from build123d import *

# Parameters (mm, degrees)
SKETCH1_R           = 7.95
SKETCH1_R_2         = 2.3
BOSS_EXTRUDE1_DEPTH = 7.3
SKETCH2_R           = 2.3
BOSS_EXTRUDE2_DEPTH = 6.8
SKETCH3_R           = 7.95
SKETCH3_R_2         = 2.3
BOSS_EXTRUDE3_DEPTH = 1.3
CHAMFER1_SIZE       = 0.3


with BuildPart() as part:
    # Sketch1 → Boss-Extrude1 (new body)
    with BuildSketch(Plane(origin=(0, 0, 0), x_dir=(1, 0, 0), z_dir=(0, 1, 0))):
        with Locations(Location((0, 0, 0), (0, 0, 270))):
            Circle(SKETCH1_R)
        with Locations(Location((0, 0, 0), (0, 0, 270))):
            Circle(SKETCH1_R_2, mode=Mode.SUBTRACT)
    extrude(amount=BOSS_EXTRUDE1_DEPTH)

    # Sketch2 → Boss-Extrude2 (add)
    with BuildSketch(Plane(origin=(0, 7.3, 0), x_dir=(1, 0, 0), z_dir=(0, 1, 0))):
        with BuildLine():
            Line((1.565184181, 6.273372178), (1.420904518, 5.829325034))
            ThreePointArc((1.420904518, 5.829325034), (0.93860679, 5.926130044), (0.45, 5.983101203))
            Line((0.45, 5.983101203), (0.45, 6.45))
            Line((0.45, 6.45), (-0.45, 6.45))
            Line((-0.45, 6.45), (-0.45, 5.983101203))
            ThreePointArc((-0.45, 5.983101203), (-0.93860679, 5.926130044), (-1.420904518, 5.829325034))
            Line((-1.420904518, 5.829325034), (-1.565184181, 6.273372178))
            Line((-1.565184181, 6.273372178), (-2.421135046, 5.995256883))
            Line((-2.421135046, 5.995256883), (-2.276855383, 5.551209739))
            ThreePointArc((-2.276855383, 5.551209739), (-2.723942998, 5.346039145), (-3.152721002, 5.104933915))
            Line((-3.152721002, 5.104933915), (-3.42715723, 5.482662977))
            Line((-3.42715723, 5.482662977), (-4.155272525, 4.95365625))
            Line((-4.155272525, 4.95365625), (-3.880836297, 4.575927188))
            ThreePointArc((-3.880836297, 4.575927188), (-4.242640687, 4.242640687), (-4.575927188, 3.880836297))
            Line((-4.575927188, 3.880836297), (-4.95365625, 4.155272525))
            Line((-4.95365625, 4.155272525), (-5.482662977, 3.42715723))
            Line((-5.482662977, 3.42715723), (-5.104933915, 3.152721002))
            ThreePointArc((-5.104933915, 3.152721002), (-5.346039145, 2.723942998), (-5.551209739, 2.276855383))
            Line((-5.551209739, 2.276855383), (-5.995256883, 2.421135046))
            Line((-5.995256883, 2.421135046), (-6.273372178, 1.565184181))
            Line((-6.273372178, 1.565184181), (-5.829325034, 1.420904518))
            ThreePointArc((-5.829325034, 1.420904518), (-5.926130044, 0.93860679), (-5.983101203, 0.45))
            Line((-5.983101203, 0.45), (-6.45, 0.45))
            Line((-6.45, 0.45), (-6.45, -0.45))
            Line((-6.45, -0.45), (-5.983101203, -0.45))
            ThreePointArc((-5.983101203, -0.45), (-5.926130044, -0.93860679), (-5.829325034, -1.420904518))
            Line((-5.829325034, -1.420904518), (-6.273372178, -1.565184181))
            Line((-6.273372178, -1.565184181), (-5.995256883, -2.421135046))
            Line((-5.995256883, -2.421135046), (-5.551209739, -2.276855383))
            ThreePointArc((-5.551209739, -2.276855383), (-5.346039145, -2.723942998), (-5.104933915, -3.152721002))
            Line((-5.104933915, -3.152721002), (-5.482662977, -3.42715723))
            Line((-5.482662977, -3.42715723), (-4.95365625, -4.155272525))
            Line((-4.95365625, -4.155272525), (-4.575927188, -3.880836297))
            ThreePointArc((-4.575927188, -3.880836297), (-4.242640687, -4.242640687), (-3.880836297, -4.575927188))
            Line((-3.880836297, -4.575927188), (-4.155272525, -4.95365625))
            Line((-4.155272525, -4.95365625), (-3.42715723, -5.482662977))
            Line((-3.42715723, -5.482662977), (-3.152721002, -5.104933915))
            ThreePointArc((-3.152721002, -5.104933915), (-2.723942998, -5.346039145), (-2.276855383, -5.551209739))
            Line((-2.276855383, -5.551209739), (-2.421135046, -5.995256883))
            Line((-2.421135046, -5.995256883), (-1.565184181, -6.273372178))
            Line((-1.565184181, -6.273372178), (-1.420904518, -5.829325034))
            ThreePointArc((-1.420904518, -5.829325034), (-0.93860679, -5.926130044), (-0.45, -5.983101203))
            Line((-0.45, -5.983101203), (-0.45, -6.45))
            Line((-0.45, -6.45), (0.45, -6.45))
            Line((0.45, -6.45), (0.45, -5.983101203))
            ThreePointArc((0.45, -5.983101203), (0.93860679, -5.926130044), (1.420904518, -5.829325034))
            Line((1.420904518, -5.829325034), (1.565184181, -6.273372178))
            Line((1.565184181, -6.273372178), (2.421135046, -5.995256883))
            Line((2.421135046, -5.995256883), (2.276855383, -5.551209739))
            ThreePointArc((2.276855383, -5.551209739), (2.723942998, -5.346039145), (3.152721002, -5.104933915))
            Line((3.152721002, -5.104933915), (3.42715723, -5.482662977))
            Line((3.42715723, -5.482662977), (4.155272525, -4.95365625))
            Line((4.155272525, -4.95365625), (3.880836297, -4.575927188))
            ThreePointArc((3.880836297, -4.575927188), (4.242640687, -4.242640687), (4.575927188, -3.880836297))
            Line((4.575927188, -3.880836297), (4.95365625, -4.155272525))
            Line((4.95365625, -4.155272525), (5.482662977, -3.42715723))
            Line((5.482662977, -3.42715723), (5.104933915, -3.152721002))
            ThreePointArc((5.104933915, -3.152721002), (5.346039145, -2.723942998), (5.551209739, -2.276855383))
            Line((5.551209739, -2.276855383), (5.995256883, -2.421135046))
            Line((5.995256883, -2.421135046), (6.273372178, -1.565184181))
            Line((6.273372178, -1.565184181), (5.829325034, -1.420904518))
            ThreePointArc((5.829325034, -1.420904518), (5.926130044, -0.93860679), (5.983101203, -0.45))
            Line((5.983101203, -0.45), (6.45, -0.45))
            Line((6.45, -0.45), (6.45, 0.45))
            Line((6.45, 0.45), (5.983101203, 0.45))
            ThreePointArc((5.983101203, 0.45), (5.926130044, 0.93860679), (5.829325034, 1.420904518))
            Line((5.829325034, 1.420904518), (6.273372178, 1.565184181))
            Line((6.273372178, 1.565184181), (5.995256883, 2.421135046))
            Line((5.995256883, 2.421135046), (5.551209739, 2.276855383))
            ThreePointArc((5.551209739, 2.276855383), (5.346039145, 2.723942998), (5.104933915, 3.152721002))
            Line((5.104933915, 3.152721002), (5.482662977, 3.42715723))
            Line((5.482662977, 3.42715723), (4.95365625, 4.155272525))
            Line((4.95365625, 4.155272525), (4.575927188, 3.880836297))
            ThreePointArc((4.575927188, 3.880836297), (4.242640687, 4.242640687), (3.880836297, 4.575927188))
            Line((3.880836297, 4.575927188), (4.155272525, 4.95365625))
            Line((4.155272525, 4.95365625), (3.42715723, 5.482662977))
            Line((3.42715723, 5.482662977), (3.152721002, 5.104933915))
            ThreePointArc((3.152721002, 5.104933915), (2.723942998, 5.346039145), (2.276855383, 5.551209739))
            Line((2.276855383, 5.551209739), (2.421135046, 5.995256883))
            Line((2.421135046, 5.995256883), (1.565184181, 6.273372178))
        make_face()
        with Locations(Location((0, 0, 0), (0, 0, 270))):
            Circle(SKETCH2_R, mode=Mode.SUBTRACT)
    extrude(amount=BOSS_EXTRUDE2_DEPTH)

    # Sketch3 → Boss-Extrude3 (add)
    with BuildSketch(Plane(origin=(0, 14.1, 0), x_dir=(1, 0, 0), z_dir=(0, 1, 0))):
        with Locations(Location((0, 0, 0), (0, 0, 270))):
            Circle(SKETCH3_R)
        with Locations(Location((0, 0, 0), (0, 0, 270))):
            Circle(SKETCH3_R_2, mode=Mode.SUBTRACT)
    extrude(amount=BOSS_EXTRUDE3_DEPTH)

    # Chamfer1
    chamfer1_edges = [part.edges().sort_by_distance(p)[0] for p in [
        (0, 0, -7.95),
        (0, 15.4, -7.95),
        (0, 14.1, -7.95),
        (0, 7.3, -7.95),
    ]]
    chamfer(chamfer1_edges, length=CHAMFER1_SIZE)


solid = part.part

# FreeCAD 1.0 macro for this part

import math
import FreeCAD as App
import Part
import Sketcher
Q = App.Units.Quantity


def edges_at(feature, points):
    """Names of the edges that pass closest to the given points."""
    edges = feature.Shape.Edges
    near = lambda p: min(range(len(edges)), key=lambda i: edges[i].distToShape(Part.Vertex(*p))[0])
    return sorted({f"Edge{near(p) + 1}" for p in points})

doc = App.newDocument("Part")
body = doc.addObject("PartDesign::Body", "Body")

# Sketch on XZ plane
sketch1 = doc.addObject("Sketcher::SketchObject", "Sketch")
body.addObject(sketch1)
sketch1.AttachmentSupport = (doc.XZ_Plane, [""])
sketch1.MapMode = "FlatFace"
sketch1.addGeometry([
    Part.Circle(App.Vector(0, 0, 0), App.Vector(0, 0, 1), 8),
    Part.Circle(App.Vector(0, 0, 0), App.Vector(0, 0, 1), 2.3),
], False)
sketch1.addConstraint([
    Sketcher.Constraint("Coincident", 0, 3, -1, 1),
    Sketcher.Constraint("Coincident", 1, 3, -1, 1),
    Sketcher.Constraint("Diameter", 0, 15.9),
    Sketcher.Constraint("Diameter", 1, 4.6),
])
pad1 = doc.addObject("PartDesign::Pad", "Pad")
body.addObject(pad1)
pad1.Profile = sketch1
pad1.Length = 7.3
pad1.Reversed = True

# Sketch on XZ plane
sketch2 = doc.addObject("Sketcher::SketchObject", "Sketch001")
body.addObject(sketch2)
sketch2.AttachmentSupport = (doc.XZ_Plane, [""])
sketch2.MapMode = "FlatFace"
sketch2.AttachmentOffset = App.Placement(App.Vector(0, 0, -7.3), App.Rotation())
sketch2.addGeometry([
    Part.LineSegment(App.Vector(1.57, -6.27, 0), App.Vector(1.42, -5.83, 0)),  # 0
    Part.ArcOfCircle(Part.Circle(App.Vector(0, 0, 0), App.Vector(0, 0, 1), 6), math.radians(-85.7), math.radians(-76.3)),  # 1
    Part.LineSegment(App.Vector(0.45, -5.98, 0), App.Vector(0.45, -6.45, 0)),  # 2
    Part.LineSegment(App.Vector(0.45, -6.45, 0), App.Vector(-0.45, -6.45, 0)),  # 3
    Part.LineSegment(App.Vector(-0.45, -6.45, 0), App.Vector(-0.45, -5.98, 0)),  # 4
    Part.ArcOfCircle(Part.Circle(App.Vector(0, 0, 0), App.Vector(0, 0, 1), 6), math.radians(-103.7), math.radians(-94.3)),  # 5
    Part.LineSegment(App.Vector(-1.42, -5.83, 0), App.Vector(-1.57, -6.27, 0)),  # 6
    Part.LineSegment(App.Vector(-1.57, -6.27, 0), App.Vector(-2.42, -6, 0)),  # 7
    Part.LineSegment(App.Vector(-2.42, -6, 0), App.Vector(-2.28, -5.55, 0)),  # 8
    Part.ArcOfCircle(Part.Circle(App.Vector(0, 0, 0), App.Vector(0, 0, 1), 6), math.radians(-121.7), math.radians(-112.3)),  # 9
    Part.LineSegment(App.Vector(-3.15, -5.1, 0), App.Vector(-3.43, -5.48, 0)),  # 10
    Part.LineSegment(App.Vector(-3.43, -5.48, 0), App.Vector(-4.16, -4.95, 0)),  # 11
    Part.LineSegment(App.Vector(-4.16, -4.95, 0), App.Vector(-3.88, -4.58, 0)),  # 12
    Part.ArcOfCircle(Part.Circle(App.Vector(0, 0, 0), App.Vector(0, 0, 1), 6), math.radians(-139.7), math.radians(-130.3)),  # 13
    Part.LineSegment(App.Vector(-4.58, -3.88, 0), App.Vector(-4.95, -4.16, 0)),  # 14
    Part.LineSegment(App.Vector(-4.95, -4.16, 0), App.Vector(-5.48, -3.43, 0)),  # 15
    Part.LineSegment(App.Vector(-5.48, -3.43, 0), App.Vector(-5.1, -3.15, 0)),  # 16
    Part.ArcOfCircle(Part.Circle(App.Vector(0, 0, 0), App.Vector(0, 0, 1), 6), math.radians(-157.7), math.radians(-148.3)),  # 17
    Part.LineSegment(App.Vector(-5.55, -2.28, 0), App.Vector(-6, -2.42, 0)),  # 18
    Part.LineSegment(App.Vector(-6, -2.42, 0), App.Vector(-6.27, -1.57, 0)),  # 19
    Part.LineSegment(App.Vector(-6.27, -1.57, 0), App.Vector(-5.83, -1.42, 0)),  # 20
    Part.ArcOfCircle(Part.Circle(App.Vector(0, 0, 0), App.Vector(0, 0, 1), 6), math.radians(-175.7), math.radians(-166.3)),  # 21
    Part.LineSegment(App.Vector(-5.98, -0.45, 0), App.Vector(-6.45, -0.45, 0)),  # 22
    Part.LineSegment(App.Vector(-6.45, -0.45, 0), App.Vector(-6.45, 0.45, 0)),  # 23
    Part.LineSegment(App.Vector(-6.45, 0.45, 0), App.Vector(-5.98, 0.45, 0)),  # 24
    Part.ArcOfCircle(Part.Circle(App.Vector(0, 0, 0), App.Vector(0, 0, 1), 6), math.radians(166.3), math.radians(175.7)),  # 25
    Part.LineSegment(App.Vector(-5.83, 1.42, 0), App.Vector(-6.27, 1.57, 0)),  # 26
    Part.LineSegment(App.Vector(-6.27, 1.57, 0), App.Vector(-6, 2.42, 0)),  # 27
    Part.LineSegment(App.Vector(-6, 2.42, 0), App.Vector(-5.55, 2.28, 0)),  # 28
    Part.ArcOfCircle(Part.Circle(App.Vector(0, 0, 0), App.Vector(0, 0, 1), 6), math.radians(148.3), math.radians(157.7)),  # 29
    Part.LineSegment(App.Vector(-5.1, 3.15, 0), App.Vector(-5.48, 3.43, 0)),  # 30
    Part.LineSegment(App.Vector(-5.48, 3.43, 0), App.Vector(-4.95, 4.16, 0)),  # 31
    Part.LineSegment(App.Vector(-4.95, 4.16, 0), App.Vector(-4.58, 3.88, 0)),  # 32
    Part.ArcOfCircle(Part.Circle(App.Vector(0, 0, 0), App.Vector(0, 0, 1), 6), math.radians(130.3), math.radians(139.7)),  # 33
    Part.LineSegment(App.Vector(-3.88, 4.58, 0), App.Vector(-4.16, 4.95, 0)),  # 34
    Part.LineSegment(App.Vector(-4.16, 4.95, 0), App.Vector(-3.43, 5.48, 0)),  # 35
    Part.LineSegment(App.Vector(-3.43, 5.48, 0), App.Vector(-3.15, 5.1, 0)),  # 36
    Part.ArcOfCircle(Part.Circle(App.Vector(0, 0, 0), App.Vector(0, 0, 1), 6), math.radians(112.3), math.radians(121.7)),  # 37
    Part.LineSegment(App.Vector(-2.28, 5.55, 0), App.Vector(-2.42, 6, 0)),  # 38
    Part.LineSegment(App.Vector(-2.42, 6, 0), App.Vector(-1.57, 6.27, 0)),  # 39
    Part.LineSegment(App.Vector(-1.57, 6.27, 0), App.Vector(-1.42, 5.83, 0)),  # 40
    Part.ArcOfCircle(Part.Circle(App.Vector(0, 0, 0), App.Vector(0, 0, 1), 6), math.radians(94.3), math.radians(103.7)),  # 41
    Part.LineSegment(App.Vector(-0.45, 5.98, 0), App.Vector(-0.45, 6.45, 0)),  # 42
    Part.LineSegment(App.Vector(-0.45, 6.45, 0), App.Vector(0.45, 6.45, 0)),  # 43
    Part.LineSegment(App.Vector(0.45, 6.45, 0), App.Vector(0.45, 5.98, 0)),  # 44
    Part.ArcOfCircle(Part.Circle(App.Vector(0, 0, 0), App.Vector(0, 0, 1), 6), math.radians(76.3), math.radians(85.7)),  # 45
    Part.LineSegment(App.Vector(1.42, 5.83, 0), App.Vector(1.57, 6.27, 0)),  # 46
    Part.LineSegment(App.Vector(1.57, 6.27, 0), App.Vector(2.42, 6, 0)),  # 47
    Part.LineSegment(App.Vector(2.42, 6, 0), App.Vector(2.28, 5.55, 0)),  # 48
    Part.ArcOfCircle(Part.Circle(App.Vector(0, 0, 0), App.Vector(0, 0, 1), 6), math.radians(58.3), math.radians(67.7)),  # 49
    Part.LineSegment(App.Vector(3.15, 5.1, 0), App.Vector(3.43, 5.48, 0)),  # 50
    Part.LineSegment(App.Vector(3.43, 5.48, 0), App.Vector(4.16, 4.95, 0)),  # 51
    Part.LineSegment(App.Vector(4.16, 4.95, 0), App.Vector(3.88, 4.58, 0)),  # 52
    Part.ArcOfCircle(Part.Circle(App.Vector(0, 0, 0), App.Vector(0, 0, 1), 6), math.radians(40.3), math.radians(49.7)),  # 53
    Part.LineSegment(App.Vector(4.58, 3.88, 0), App.Vector(4.95, 4.16, 0)),  # 54
    Part.LineSegment(App.Vector(4.95, 4.16, 0), App.Vector(5.48, 3.43, 0)),  # 55
    Part.LineSegment(App.Vector(5.48, 3.43, 0), App.Vector(5.1, 3.15, 0)),  # 56
    Part.ArcOfCircle(Part.Circle(App.Vector(0, 0, 0), App.Vector(0, 0, 1), 6), math.radians(22.3), math.radians(31.7)),  # 57
    Part.LineSegment(App.Vector(5.55, 2.28, 0), App.Vector(6, 2.42, 0)),  # 58
    Part.LineSegment(App.Vector(6, 2.42, 0), App.Vector(6.27, 1.57, 0)),  # 59
    Part.LineSegment(App.Vector(6.27, 1.57, 0), App.Vector(5.83, 1.42, 0)),  # 60
    Part.ArcOfCircle(Part.Circle(App.Vector(0, 0, 0), App.Vector(0, 0, 1), 6), math.radians(4.3), math.radians(13.7)),  # 61
    Part.LineSegment(App.Vector(5.98, 0.45, 0), App.Vector(6.45, 0.45, 0)),  # 62
    Part.LineSegment(App.Vector(6.45, 0.45, 0), App.Vector(6.45, -0.45, 0)),  # 63
    Part.LineSegment(App.Vector(6.45, -0.45, 0), App.Vector(5.98, -0.45, 0)),  # 64
    Part.ArcOfCircle(Part.Circle(App.Vector(0, 0, 0), App.Vector(0, 0, 1), 6), math.radians(-13.7), math.radians(-4.3)),  # 65
    Part.LineSegment(App.Vector(5.83, -1.42, 0), App.Vector(6.27, -1.57, 0)),  # 66
    Part.LineSegment(App.Vector(6.27, -1.57, 0), App.Vector(6, -2.42, 0)),  # 67
    Part.LineSegment(App.Vector(6, -2.42, 0), App.Vector(5.55, -2.28, 0)),  # 68
    Part.ArcOfCircle(Part.Circle(App.Vector(0, 0, 0), App.Vector(0, 0, 1), 6), math.radians(-31.7), math.radians(-22.3)),  # 69
    Part.LineSegment(App.Vector(5.1, -3.15, 0), App.Vector(5.48, -3.43, 0)),  # 70
    Part.LineSegment(App.Vector(5.48, -3.43, 0), App.Vector(4.95, -4.16, 0)),  # 71
    Part.LineSegment(App.Vector(4.95, -4.16, 0), App.Vector(4.58, -3.88, 0)),  # 72
    Part.ArcOfCircle(Part.Circle(App.Vector(0, 0, 0), App.Vector(0, 0, 1), 6), math.radians(-49.7), math.radians(-40.3)),  # 73
    Part.LineSegment(App.Vector(3.88, -4.58, 0), App.Vector(4.16, -4.95, 0)),  # 74
    Part.LineSegment(App.Vector(4.16, -4.95, 0), App.Vector(3.43, -5.48, 0)),  # 75
    Part.LineSegment(App.Vector(3.43, -5.48, 0), App.Vector(3.15, -5.1, 0)),  # 76
    Part.ArcOfCircle(Part.Circle(App.Vector(0, 0, 0), App.Vector(0, 0, 1), 6), math.radians(-67.7), math.radians(-58.3)),  # 77
    Part.LineSegment(App.Vector(2.28, -5.55, 0), App.Vector(2.42, -6, 0)),  # 78
    Part.LineSegment(App.Vector(2.42, -6, 0), App.Vector(1.57, -6.27, 0)),  # 79
    Part.Circle(App.Vector(0, 0, 0), App.Vector(0, 0, 1), 2.3),  # 80
], False)
sketch2.addConstraint([
    Sketcher.Constraint("Coincident", 0, 2, 1, 2),
    Sketcher.Constraint("Coincident", 1, 1, 2, 1),
    Sketcher.Constraint("Coincident", 2, 2, 3, 1),
    Sketcher.Constraint("Coincident", 3, 2, 4, 1),
    Sketcher.Constraint("Coincident", 4, 2, 5, 2),
    Sketcher.Constraint("Coincident", 5, 1, 6, 1),
    Sketcher.Constraint("Coincident", 6, 2, 7, 1),
    Sketcher.Constraint("Coincident", 7, 2, 8, 1),
    Sketcher.Constraint("Coincident", 8, 2, 9, 2),
    Sketcher.Constraint("Coincident", 9, 1, 10, 1),
    Sketcher.Constraint("Coincident", 10, 2, 11, 1),
    Sketcher.Constraint("Coincident", 11, 2, 12, 1),
    Sketcher.Constraint("Coincident", 12, 2, 13, 2),
    Sketcher.Constraint("Coincident", 13, 1, 14, 1),
    Sketcher.Constraint("Coincident", 14, 2, 15, 1),
    Sketcher.Constraint("Coincident", 15, 2, 16, 1),
    Sketcher.Constraint("Coincident", 16, 2, 17, 2),
    Sketcher.Constraint("Coincident", 17, 1, 18, 1),
    Sketcher.Constraint("Coincident", 18, 2, 19, 1),
    Sketcher.Constraint("Coincident", 19, 2, 20, 1),
    Sketcher.Constraint("Coincident", 20, 2, 21, 2),
    Sketcher.Constraint("Coincident", 21, 1, 22, 1),
    Sketcher.Constraint("Coincident", 22, 2, 23, 1),
    Sketcher.Constraint("Coincident", 23, 2, 24, 1),
    Sketcher.Constraint("Coincident", 24, 2, 25, 2),
    Sketcher.Constraint("Coincident", 25, 1, 26, 1),
    Sketcher.Constraint("Coincident", 26, 2, 27, 1),
    Sketcher.Constraint("Coincident", 27, 2, 28, 1),
    Sketcher.Constraint("Coincident", 28, 2, 29, 2),
    Sketcher.Constraint("Coincident", 29, 1, 30, 1),
    Sketcher.Constraint("Coincident", 30, 2, 31, 1),
    Sketcher.Constraint("Coincident", 31, 2, 32, 1),
    Sketcher.Constraint("Coincident", 32, 2, 33, 2),
    Sketcher.Constraint("Coincident", 33, 1, 34, 1),
    Sketcher.Constraint("Coincident", 34, 2, 35, 1),
    Sketcher.Constraint("Coincident", 35, 2, 36, 1),
    Sketcher.Constraint("Coincident", 36, 2, 37, 2),
    Sketcher.Constraint("Coincident", 37, 1, 38, 1),
    Sketcher.Constraint("Coincident", 38, 2, 39, 1),
    Sketcher.Constraint("Coincident", 39, 2, 40, 1),
    Sketcher.Constraint("Coincident", 40, 2, 41, 2),
    Sketcher.Constraint("Coincident", 41, 1, 42, 1),
    Sketcher.Constraint("Coincident", 42, 2, 43, 1),
    Sketcher.Constraint("Coincident", 43, 2, 44, 1),
    Sketcher.Constraint("Coincident", 44, 2, 45, 2),
    Sketcher.Constraint("Coincident", 45, 1, 46, 1),
    Sketcher.Constraint("Coincident", 46, 2, 47, 1),
    Sketcher.Constraint("Coincident", 47, 2, 48, 1),
    Sketcher.Constraint("Coincident", 48, 2, 49, 2),
    Sketcher.Constraint("Coincident", 49, 1, 50, 1),
    Sketcher.Constraint("Coincident", 50, 2, 51, 1),
    Sketcher.Constraint("Coincident", 51, 2, 52, 1),
    Sketcher.Constraint("Coincident", 52, 2, 53, 2),
    Sketcher.Constraint("Coincident", 53, 1, 54, 1),
    Sketcher.Constraint("Coincident", 54, 2, 55, 1),
    Sketcher.Constraint("Coincident", 55, 2, 56, 1),
    Sketcher.Constraint("Coincident", 56, 2, 57, 2),
    Sketcher.Constraint("Coincident", 57, 1, 58, 1),
    Sketcher.Constraint("Coincident", 58, 2, 59, 1),
    Sketcher.Constraint("Coincident", 59, 2, 60, 1),
    Sketcher.Constraint("Coincident", 60, 2, 61, 2),
    Sketcher.Constraint("Coincident", 61, 1, 62, 1),
    Sketcher.Constraint("Coincident", 62, 2, 63, 1),
    Sketcher.Constraint("Coincident", 63, 2, 64, 1),
    Sketcher.Constraint("Coincident", 64, 2, 65, 2),
    Sketcher.Constraint("Coincident", 65, 1, 66, 1),
    Sketcher.Constraint("Coincident", 66, 2, 67, 1),
    Sketcher.Constraint("Coincident", 67, 2, 68, 1),
    Sketcher.Constraint("Coincident", 68, 2, 69, 2),
    Sketcher.Constraint("Coincident", 69, 1, 70, 1),
    Sketcher.Constraint("Coincident", 70, 2, 71, 1),
    Sketcher.Constraint("Coincident", 71, 2, 72, 1),
    Sketcher.Constraint("Coincident", 72, 2, 73, 2),
    Sketcher.Constraint("Coincident", 73, 1, 74, 1),
    Sketcher.Constraint("Coincident", 74, 2, 75, 1),
    Sketcher.Constraint("Coincident", 75, 2, 76, 1),
    Sketcher.Constraint("Coincident", 76, 2, 77, 2),
    Sketcher.Constraint("Coincident", 77, 1, 78, 1),
    Sketcher.Constraint("Coincident", 78, 2, 79, 1),
    Sketcher.Constraint("Coincident", 79, 2, 0, 1),
    Sketcher.Constraint("Vertical", 2),
    Sketcher.Constraint("Horizontal", 3),
    Sketcher.Constraint("Vertical", 4),
    Sketcher.Constraint("Horizontal", 22),
    Sketcher.Constraint("Vertical", 23),
    Sketcher.Constraint("Horizontal", 24),
    Sketcher.Constraint("Vertical", 42),
    Sketcher.Constraint("Horizontal", 43),
    Sketcher.Constraint("Vertical", 44),
    Sketcher.Constraint("Horizontal", 62),
    Sketcher.Constraint("Vertical", 63),
    Sketcher.Constraint("Horizontal", 64),
    Sketcher.Constraint("Coincident", 1, 3, -1, 1),
    Sketcher.Constraint("Coincident", 5, 3, -1, 1),
    Sketcher.Constraint("Coincident", 9, 3, -1, 1),
    Sketcher.Constraint("Coincident", 13, 3, -1, 1),
    Sketcher.Constraint("Coincident", 17, 3, -1, 1),
    Sketcher.Constraint("Coincident", 21, 3, -1, 1),
    Sketcher.Constraint("Coincident", 25, 3, -1, 1),
    Sketcher.Constraint("Coincident", 29, 3, -1, 1),
    Sketcher.Constraint("Coincident", 33, 3, -1, 1),
    Sketcher.Constraint("Coincident", 37, 3, -1, 1),
    Sketcher.Constraint("Coincident", 41, 3, -1, 1),
    Sketcher.Constraint("Coincident", 45, 3, -1, 1),
    Sketcher.Constraint("Coincident", 49, 3, -1, 1),
    Sketcher.Constraint("Coincident", 53, 3, -1, 1),
    Sketcher.Constraint("Coincident", 57, 3, -1, 1),
    Sketcher.Constraint("Coincident", 61, 3, -1, 1),
    Sketcher.Constraint("Coincident", 65, 3, -1, 1),
    Sketcher.Constraint("Coincident", 69, 3, -1, 1),
    Sketcher.Constraint("Coincident", 73, 3, -1, 1),
    Sketcher.Constraint("Coincident", 77, 3, -1, 1),
    Sketcher.Constraint("Coincident", 80, 3, -1, 1),
    Sketcher.Constraint("Equal", 1, 5),
    Sketcher.Constraint("Equal", 5, 9),
    Sketcher.Constraint("Equal", 9, 13),
    Sketcher.Constraint("Equal", 13, 17),
    Sketcher.Constraint("Equal", 17, 21),
    Sketcher.Constraint("Equal", 21, 25),
    Sketcher.Constraint("Equal", 25, 29),
    Sketcher.Constraint("Equal", 29, 33),
    Sketcher.Constraint("Equal", 33, 37),
    Sketcher.Constraint("Equal", 37, 41),
    Sketcher.Constraint("Equal", 41, 45),
    Sketcher.Constraint("Equal", 45, 49),
    Sketcher.Constraint("Equal", 49, 53),
    Sketcher.Constraint("Equal", 53, 57),
    Sketcher.Constraint("Equal", 57, 61),
    Sketcher.Constraint("Equal", 61, 65),
    Sketcher.Constraint("Equal", 65, 69),
    Sketcher.Constraint("Equal", 69, 73),
    Sketcher.Constraint("Equal", 73, 77),
    Sketcher.Constraint("Symmetric", 2, 2, 42, 2, -1, 1),
    Sketcher.Constraint("Symmetric", 6, 2, 46, 2, -1, 1),
    Sketcher.Constraint("Symmetric", 7, 2, 47, 2, -1, 1),
    Sketcher.Constraint("Symmetric", 10, 2, 50, 2, -1, 1),
    Sketcher.Constraint("Symmetric", 11, 2, 51, 2, -1, 1),
    Sketcher.Constraint("Symmetric", 14, 2, 54, 2, -1, 1),
    Sketcher.Constraint("Symmetric", 15, 2, 55, 2, -1, 1),
    Sketcher.Constraint("Symmetric", 18, 2, 58, 2, -1, 1),
    Sketcher.Constraint("Symmetric", 19, 2, 59, 2, -1, 1),
    Sketcher.Constraint("Symmetric", 22, 2, 62, 2, -1, 1),
    Sketcher.Constraint("Symmetric", 26, 2, 66, 2, -1, 1),
    Sketcher.Constraint("Symmetric", 27, 2, 67, 2, -1, 1),
    Sketcher.Constraint("Symmetric", 30, 2, 70, 2, -1, 1),
    Sketcher.Constraint("Symmetric", 31, 2, 71, 2, -1, 1),
    Sketcher.Constraint("Symmetric", 34, 2, 74, 2, -1, 1),
    Sketcher.Constraint("Symmetric", 35, 2, 75, 2, -1, 1),
    Sketcher.Constraint("Symmetric", 38, 2, 78, 2, -1, 1),
    Sketcher.Constraint("Symmetric", 39, 2, 79, 2, -1, 1),
    Sketcher.Constraint("Symmetric", 39, 2, 46, 2, -2),
    Sketcher.Constraint("Symmetric", 38, 2, 47, 2, -2),
    Sketcher.Constraint("Symmetric", 35, 2, 50, 2, -2),
    Sketcher.Constraint("Symmetric", 34, 2, 51, 2, -2),
    Sketcher.Constraint("Symmetric", 31, 2, 54, 2, -2),
    Sketcher.Constraint("Symmetric", 30, 2, 55, 2, -2),
    Sketcher.Constraint("Symmetric", 27, 2, 58, 2, -2),
    Sketcher.Constraint("Symmetric", 26, 2, 59, 2, -2),
    Sketcher.Constraint("Perpendicular", 6, 7),
    Sketcher.Constraint("Perpendicular", 7, 8),
    Sketcher.Constraint("Perpendicular", 10, 11),
    Sketcher.Constraint("Perpendicular", 11, 12),
    Sketcher.Constraint("Perpendicular", 14, 15),
    Sketcher.Constraint("Perpendicular", 15, 16),
    Sketcher.Constraint("Perpendicular", 0, 18),
    Sketcher.Constraint("Perpendicular", 18, 19),
    Sketcher.Constraint("Perpendicular", 19, 20),
    Sketcher.Constraint("Perpendicular", 8, 26),
    Sketcher.Constraint("Perpendicular", 26, 27),
    Sketcher.Constraint("Perpendicular", 27, 28),
    Sketcher.Constraint("Perpendicular", 12, 30),
    Sketcher.Constraint("Perpendicular", 30, 31),
    Sketcher.Constraint("Perpendicular", 31, 32),
    Sketcher.Constraint("Perpendicular", 16, 34),
    Sketcher.Constraint("Perpendicular", 35, 36),
    Sketcher.Constraint("Perpendicular", 20, 38),
    Sketcher.Constraint("Perpendicular", 39, 40),
    Sketcher.Constraint("Perpendicular", 28, 46),
    Sketcher.Constraint("Perpendicular", 47, 48),
    Sketcher.Constraint("Perpendicular", 32, 50),
    Sketcher.Constraint("Perpendicular", 51, 52),
    Sketcher.Constraint("Perpendicular", 36, 54),
    Sketcher.Constraint("Perpendicular", 55, 56),
    Sketcher.Constraint("Perpendicular", 40, 58),
    Sketcher.Constraint("Perpendicular", 59, 60),
    Sketcher.Constraint("Perpendicular", 48, 66),
    Sketcher.Constraint("Perpendicular", 67, 68),
    Sketcher.Constraint("Perpendicular", 52, 70),
    Sketcher.Constraint("Perpendicular", 71, 72),
    Sketcher.Constraint("Perpendicular", 56, 74),
    Sketcher.Constraint("Perpendicular", 75, 76),
    Sketcher.Constraint("Perpendicular", 60, 78),
    Sketcher.Constraint("Horizontal", 1, 1, 4, 2),
    Sketcher.Constraint("Horizontal", 41, 1, 44, 2),
    Sketcher.Constraint("Horizontal", 24, 2, 61, 1),
    Sketcher.Constraint("Horizontal", 22, 2, 63, 2),
    Sketcher.Constraint("Equal", 64, 2),
    Sketcher.Constraint("Equal", 43, 23),
    Sketcher.Constraint("Equal", 6, 8),
    Sketcher.Constraint("Equal", 8, 10),
    Sketcher.Constraint("Equal", 7, 11),
    Sketcher.Constraint("Equal", 10, 12),
    Sketcher.Constraint("Equal", 12, 14),
    Sketcher.Constraint("Equal", 11, 15),
    Sketcher.Constraint("Equal", 14, 16),
    Sketcher.Constraint("Equal", 16, 18),
    Sketcher.Constraint("Equal", 15, 19),
    Sketcher.Constraint("Equal", 18, 20),
    Sketcher.Constraint("Radius", 1, 6.0),
    Sketcher.Constraint("Diameter", 80, 4.6),
    Sketcher.Constraint("Angle", 0, Q("108 deg")),
    Sketcher.Constraint("Angle", 10, Q("-126 deg")),
    Sketcher.Constraint("DistanceX", 3, 2, 3, 1, 0.9),
    Sketcher.Constraint("Distance", 7, 0.9),
    Sketcher.Constraint("DistanceY", 2, 2, -1, 1, 6.45),
    Sketcher.Constraint("Distance", 0, 0.466899),
])
pad2 = doc.addObject("PartDesign::Pad", "Pad001")
body.addObject(pad2)
pad2.Profile = sketch2
pad2.Length = 6.8
pad2.Reversed = True

# Sketch on XZ plane
sketch3 = doc.addObject("Sketcher::SketchObject", "Sketch002")
body.addObject(sketch3)
sketch3.AttachmentSupport = (doc.XZ_Plane, [""])
sketch3.MapMode = "FlatFace"
sketch3.AttachmentOffset = App.Placement(App.Vector(0, 0, -14.1), App.Rotation())
sketch3.addGeometry([
    Part.Circle(App.Vector(0, 0, 0), App.Vector(0, 0, 1), 8),
    Part.Circle(App.Vector(0, 0, 0), App.Vector(0, 0, 1), 2.3),
], False)
sketch3.addConstraint([
    Sketcher.Constraint("Coincident", 0, 3, -1, 1),
    Sketcher.Constraint("Coincident", 1, 3, -1, 1),
    Sketcher.Constraint("Diameter", 0, 15.9),
    Sketcher.Constraint("Diameter", 1, 4.6),
])
pad3 = doc.addObject("PartDesign::Pad", "Pad002")
body.addObject(pad3)
pad3.Profile = sketch3
pad3.Length = 1.3
pad3.Reversed = True
doc.recompute()

chamfer = doc.addObject("PartDesign::Chamfer", "Chamfer")
body.addObject(chamfer)
chamfer.Base = (pad3, edges_at(pad3, [
    (0, 0, -7.95),
    (0, 15.4, -7.95),
    (0, 14.1, -7.95),
    (0, 7.3, -7.95),
]))
chamfer.Size = 0.3

doc.recompute()
